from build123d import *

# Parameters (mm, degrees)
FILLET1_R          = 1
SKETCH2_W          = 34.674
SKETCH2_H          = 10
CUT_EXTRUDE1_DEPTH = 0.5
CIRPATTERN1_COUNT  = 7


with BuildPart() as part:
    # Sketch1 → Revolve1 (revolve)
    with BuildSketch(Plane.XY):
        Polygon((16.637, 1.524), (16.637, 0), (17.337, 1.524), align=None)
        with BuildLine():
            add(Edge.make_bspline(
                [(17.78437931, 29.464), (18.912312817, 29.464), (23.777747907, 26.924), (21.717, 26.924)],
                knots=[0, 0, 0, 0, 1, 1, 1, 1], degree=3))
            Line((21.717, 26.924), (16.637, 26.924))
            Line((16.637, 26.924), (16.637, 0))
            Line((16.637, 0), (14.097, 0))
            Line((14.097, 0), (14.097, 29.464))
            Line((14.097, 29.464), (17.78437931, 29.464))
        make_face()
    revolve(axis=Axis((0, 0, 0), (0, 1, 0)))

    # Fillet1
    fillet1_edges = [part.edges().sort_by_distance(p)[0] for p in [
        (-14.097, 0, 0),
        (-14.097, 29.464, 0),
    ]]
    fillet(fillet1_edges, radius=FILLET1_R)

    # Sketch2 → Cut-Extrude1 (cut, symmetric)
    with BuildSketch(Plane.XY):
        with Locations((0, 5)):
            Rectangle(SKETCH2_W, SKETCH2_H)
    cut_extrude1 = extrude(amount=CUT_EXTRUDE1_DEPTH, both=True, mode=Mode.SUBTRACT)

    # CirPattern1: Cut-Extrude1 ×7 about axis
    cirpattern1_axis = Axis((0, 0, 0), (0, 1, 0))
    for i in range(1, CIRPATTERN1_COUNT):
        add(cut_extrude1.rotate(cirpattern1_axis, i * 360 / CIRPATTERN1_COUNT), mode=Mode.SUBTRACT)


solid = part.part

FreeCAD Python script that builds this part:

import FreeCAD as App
import Part
import Sketcher
from FreeCAD import Vector


def edges_at(feature, points):
    """Names of the edges that pass closest to the given points."""
    edges = feature.Shape.Edges
    near = lambda p: min(range(len(edges)), key=lambda i: edges[i].distToShape(Part.Vertex(*p))[0])
    return sorted({f"Edge{near(p) + 1}" for p in points})

doc = App.newDocument("Part")
body = doc.addObject("PartDesign::Body", "Body")

sketch1 = body.newObject("Sketcher::SketchObject", "Sketch")
sketch1.AttachmentSupport = (doc.getObject("XY_Plane"), [""])
sketch1.MapMode = "FlatFace"
sketch1.addGeometry([
    Part.LineSegment(Vector(16.637, 0, 0), Vector(17.337, 1.524, 0)),
    Part.LineSegment(Vector(17.337, 1.524, 0), Vector(16.637, 1.524, 0)),
    Part.LineSegment(Vector(16.637, 1.524, 0), Vector(16.637, 26.924, 0)),
    Part.LineSegment(Vector(16.637, 26.924, 0), Vector(21.717, 26.924, 0)),
    Part.BSplineCurve([Vector(17.784379, 29.464, 0), Vector(18.912313, 29.464, 0), Vector(23.777748, 26.924, 0), Vector(21.717, 26.924, 0)], [4, 4], [0, 1], False, 3, [1, 1, 1, 1], False),
    Part.LineSegment(Vector(17.784379, 29.464, 0), Vector(14.097, 29.464, 0)),
    Part.LineSegment(Vector(14.097, 29.464, 0), Vector(14.097, 0, 0)),
    Part.LineSegment(Vector(14.097, 0, 0), Vector(16.637, 0, 0)),
], False)
sketch1.addConstraint([
    Sketcher.Constraint("Block", 4),
    Sketcher.Constraint("Coincident", 0, 2, 1, 1),
    Sketcher.Constraint("Coincident", 1, 2, 2, 1),
    Sketcher.Constraint("Coincident", 2, 2, 3, 1),
    Sketcher.Constraint("Coincident", 3, 2, 4, 2),
    Sketcher.Constraint("Coincident", 4, 1, 5, 1),
    Sketcher.Constraint("Coincident", 5, 2, 6, 1),
    Sketcher.Constraint("Coincident", 6, 2, 7, 1),
    Sketcher.Constraint("Coincident", 7, 2, 0, 1),
    Sketcher.Constraint("Horizontal", 1),
    Sketcher.Constraint("Vertical", 2),
    Sketcher.Constraint("Horizontal", 3),
    Sketcher.Constraint("Horizontal", 5),
    Sketcher.Constraint("Vertical", 6),
    Sketcher.Constraint("Horizontal", 7),
    Sketcher.Constraint("PointOnObject", 6, 2, -1),
    Sketcher.Constraint("Vertical", 2, 2, 7, 2),
    Sketcher.Constraint("DistanceX", 1, 2, 1, 1, 0.7),
    Sketcher.Constraint("DistanceY", 2, 1, 2, 2, 25.4),
    Sketcher.Constraint("DistanceX", 3, 1, 3, 2, 5.08),
    Sketcher.Constraint("DistanceX", 7, 1, 7, 2, 2.54),
])
revolution = body.newObject("PartDesign::Revolution", "Revolution")
revolution.Profile = sketch1
revolution.ReferenceAxis = (sketch1, ["V_Axis"])
revolution.Angle = 360
doc.recompute()

fillet = body.newObject("PartDesign::Fillet", "Fillet")
fillet.Base = (revolution, edges_at(revolution, [(-14.097, 0, 0), (-14.097, 29.464, 0)]))
fillet.Radius = 1

sketch2 = body.newObject("Sketcher::SketchObject", "Sketch001")
sketch2.AttachmentSupport = (doc.getObject("XY_Plane"), [""])
sketch2.MapMode = "FlatFace"
sketch2.addGeometry([
    Part.LineSegment(Vector(-17, 10, 0), Vector(-17, 0, 0)),
    Part.LineSegment(Vector(-17, 0, 0), Vector(17, 0, 0)),
    Part.LineSegment(Vector(17, 0, 0), Vector(17, 10, 0)),
    Part.LineSegment(Vector(17, 10, 0), Vector(-17, 10, 0)),
], False)
sketch2.addConstraint([
    Sketcher.Constraint("Coincident", 0, 2, 1, 1),
    Sketcher.Constraint("Coincident", 1, 2, 2, 1),
    Sketcher.Constraint("Coincident", 2, 2, 3, 1),
    Sketcher.Constraint("Coincident", 3, 2, 0, 1),
    Sketcher.Constraint("Vertical", 0),
    Sketcher.Constraint("Horizontal", 1),
    Sketcher.Constraint("Vertical", 2),
    Sketcher.Constraint("Horizontal", 3),
    Sketcher.Constraint("Symmetric", 0, 2, 1, 2, -1, 1),
    Sketcher.Constraint("DistanceY", 0, 2, 0, 1, 10.0),
    Sketcher.Constraint("DistanceX", 1, 1, 1, 2, 34.674),
])
pocket1 = body.newObject("PartDesign::Pocket", "Pocket")
pocket1.Profile = sketch2
pocket1.Length = 1
pocket1.Midplane = True
doc.recompute()

polarpattern = body.newObject("PartDesign::PolarPattern", "PolarPattern")
polarpattern.Originals = [pocket1]
polarpattern.Axis = (doc.getObject("Y_Axis"), [""])
polarpattern.Angle = 360
polarpattern.Occurrences = 7
body.Tip = polarpattern

doc.recompute()
